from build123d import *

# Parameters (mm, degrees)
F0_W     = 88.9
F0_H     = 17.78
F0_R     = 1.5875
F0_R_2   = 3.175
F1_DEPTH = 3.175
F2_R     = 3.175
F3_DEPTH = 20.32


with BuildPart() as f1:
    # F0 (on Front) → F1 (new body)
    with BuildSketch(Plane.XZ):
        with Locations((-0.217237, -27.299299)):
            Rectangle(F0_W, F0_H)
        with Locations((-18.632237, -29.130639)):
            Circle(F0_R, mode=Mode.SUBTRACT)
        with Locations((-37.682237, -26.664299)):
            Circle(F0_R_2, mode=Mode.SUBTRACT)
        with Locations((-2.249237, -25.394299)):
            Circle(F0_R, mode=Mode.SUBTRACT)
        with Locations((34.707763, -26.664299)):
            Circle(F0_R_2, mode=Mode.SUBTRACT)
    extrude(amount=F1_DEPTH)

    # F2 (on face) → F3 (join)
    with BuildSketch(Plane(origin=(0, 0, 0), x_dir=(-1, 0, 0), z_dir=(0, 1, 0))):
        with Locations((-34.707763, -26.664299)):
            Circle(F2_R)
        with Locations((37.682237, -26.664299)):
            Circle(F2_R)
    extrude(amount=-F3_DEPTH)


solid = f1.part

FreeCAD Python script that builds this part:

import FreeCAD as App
import Part
import Sketcher
Q = App.Units.Quantity


def add_polygon(sketch, points):
    """Adds a closed chain of lines whose ends are joined by coincident constraints."""
    first, n = sketch.GeometryCount, len(points)
    for a, b in zip(points, points[1:] + points[:1]):
        sketch.addGeometry(Part.LineSegment(App.Vector(*a, 0), App.Vector(*b, 0)), False)
    for i in range(n):
        sketch.addConstraint(Sketcher.Constraint("Coincident", first + i, 2, first + (i + 1) % n, 1))

doc = App.newDocument("Part")
body = doc.addObject("PartDesign::Body", "Body")

# Sketch on XZ plane
sketch1 = body.newObject("Sketcher::SketchObject", "Sketch")
sketch1.AttachmentSupport = (doc.getObject("XZ_Plane"), [""])
sketch1.MapMode = "FlatFace"
add_polygon(sketch1, [(-44.667237, -18.409299), (-44.667237, -36.189299), (44.232763, -36.189299), (44.232763, -18.409299)])  # lines 0-3
sketch1.addGeometry(Part.Circle(App.Vector(-18.632237, -29.130639, 0), App.Vector(0, 0, 1), 1.5875), False)  # 4
sketch1.addGeometry(Part.Circle(App.Vector(-37.682237, -26.664299, 0), App.Vector(0, 0, 1), 3.175), False)  # 5
sketch1.addGeometry(Part.Circle(App.Vector(-2.249237, -25.394299, 0), App.Vector(0, 0, 1), 1.5875), False)  # 6
sketch1.addGeometry(Part.Circle(App.Vector(34.707763, -26.664299, 0), App.Vector(0, 0, 1), 3.175), False)  # 7
sketch1.addConstraint([
    Sketcher.Constraint("Vertical", 0),
    Sketcher.Constraint("Horizontal", 1),
    Sketcher.Constraint("Vertical", 2),
    Sketcher.Constraint("Horizontal", 3),
    Sketcher.Constraint("Equal", 4, 6),
    Sketcher.Constraint("Equal", 5, 7),
    Sketcher.Constraint("Horizontal", 5, 3, 7, 3),
    Sketcher.Constraint("Diameter", 5, Q("0.25 in")),
    Sketcher.Constraint("Diameter", 4, Q("0.125 in")),
    Sketcher.Constraint("DistanceX", 1, 1, 1, 2, Q("3.5 in")),
    Sketcher.Constraint("DistanceY", 0, 2, 0, 1, Q("0.7 in")),
    Sketcher.Constraint("DistanceX", 4, 3, 7, 3, Q("2.1 in")),
    Sketcher.Constraint("DistanceX", 5, 3, 4, 3, Q("0.75 in")),
    Sketcher.Constraint("DistanceY", 5, 3, 6, 3, Q("0.05 in")),
    Sketcher.Constraint("DistanceX", 0, 2, 6, 3, Q("1.67 in")),
    Sketcher.Constraint("DistanceX", 4, 3, 6, 3, Q("0.645 in")),
    Sketcher.Constraint("DistanceY", 0, 2, 5, 3, Q("0.375 in")),
    Sketcher.Constraint("DistanceY", 4, 3, 5, 3, Q("0.0971 in")),
    Sketcher.Constraint("DistanceY", 5, 3, -1, 1, Q("26.664299 mm")),
    Sketcher.Constraint("DistanceX", 4, 3, -1, 1, Q("18.632237 mm")),
])
pad1 = body.newObject("PartDesign::Pad", "Pad")
pad1.Profile = sketch1
pad1.Length = Q("0.125 in")

# Sketch on XZ plane
sketch2 = body.newObject("Sketcher::SketchObject", "Sketch001")
sketch2.AttachmentSupport = (doc.getObject("XZ_Plane"), [""])
sketch2.MapMode = "FlatFace"
sketch2.addGeometry([
    Part.Circle(App.Vector(34.707763, -26.664299, 0), App.Vector(0, 0, 1), 3.175),
    Part.Circle(App.Vector(-37.682237, -26.664299, 0), App.Vector(0, 0, 1), 3.175),
], False)
sketch2.addConstraint([
    Sketcher.Constraint("Equal", 0, 1),
    Sketcher.Constraint("Horizontal", 0, 3, 1, 3),
    Sketcher.Constraint("Diameter", 0, Q("0.25 in")),
    Sketcher.Constraint("DistanceX", 1, 3, 0, 3, Q("2.85 in")),
    Sketcher.Constraint("DistanceY", 0, 3, -1, 1, Q("26.664299 mm")),
    Sketcher.Constraint("DistanceX", -1, 1, 0, 3, Q("34.707763 mm")),
])
pad2 = body.newObject("PartDesign::Pad", "Pad001")
pad2.Profile = sketch2
pad2.Length = Q("0.8 in")

doc.recompute()
